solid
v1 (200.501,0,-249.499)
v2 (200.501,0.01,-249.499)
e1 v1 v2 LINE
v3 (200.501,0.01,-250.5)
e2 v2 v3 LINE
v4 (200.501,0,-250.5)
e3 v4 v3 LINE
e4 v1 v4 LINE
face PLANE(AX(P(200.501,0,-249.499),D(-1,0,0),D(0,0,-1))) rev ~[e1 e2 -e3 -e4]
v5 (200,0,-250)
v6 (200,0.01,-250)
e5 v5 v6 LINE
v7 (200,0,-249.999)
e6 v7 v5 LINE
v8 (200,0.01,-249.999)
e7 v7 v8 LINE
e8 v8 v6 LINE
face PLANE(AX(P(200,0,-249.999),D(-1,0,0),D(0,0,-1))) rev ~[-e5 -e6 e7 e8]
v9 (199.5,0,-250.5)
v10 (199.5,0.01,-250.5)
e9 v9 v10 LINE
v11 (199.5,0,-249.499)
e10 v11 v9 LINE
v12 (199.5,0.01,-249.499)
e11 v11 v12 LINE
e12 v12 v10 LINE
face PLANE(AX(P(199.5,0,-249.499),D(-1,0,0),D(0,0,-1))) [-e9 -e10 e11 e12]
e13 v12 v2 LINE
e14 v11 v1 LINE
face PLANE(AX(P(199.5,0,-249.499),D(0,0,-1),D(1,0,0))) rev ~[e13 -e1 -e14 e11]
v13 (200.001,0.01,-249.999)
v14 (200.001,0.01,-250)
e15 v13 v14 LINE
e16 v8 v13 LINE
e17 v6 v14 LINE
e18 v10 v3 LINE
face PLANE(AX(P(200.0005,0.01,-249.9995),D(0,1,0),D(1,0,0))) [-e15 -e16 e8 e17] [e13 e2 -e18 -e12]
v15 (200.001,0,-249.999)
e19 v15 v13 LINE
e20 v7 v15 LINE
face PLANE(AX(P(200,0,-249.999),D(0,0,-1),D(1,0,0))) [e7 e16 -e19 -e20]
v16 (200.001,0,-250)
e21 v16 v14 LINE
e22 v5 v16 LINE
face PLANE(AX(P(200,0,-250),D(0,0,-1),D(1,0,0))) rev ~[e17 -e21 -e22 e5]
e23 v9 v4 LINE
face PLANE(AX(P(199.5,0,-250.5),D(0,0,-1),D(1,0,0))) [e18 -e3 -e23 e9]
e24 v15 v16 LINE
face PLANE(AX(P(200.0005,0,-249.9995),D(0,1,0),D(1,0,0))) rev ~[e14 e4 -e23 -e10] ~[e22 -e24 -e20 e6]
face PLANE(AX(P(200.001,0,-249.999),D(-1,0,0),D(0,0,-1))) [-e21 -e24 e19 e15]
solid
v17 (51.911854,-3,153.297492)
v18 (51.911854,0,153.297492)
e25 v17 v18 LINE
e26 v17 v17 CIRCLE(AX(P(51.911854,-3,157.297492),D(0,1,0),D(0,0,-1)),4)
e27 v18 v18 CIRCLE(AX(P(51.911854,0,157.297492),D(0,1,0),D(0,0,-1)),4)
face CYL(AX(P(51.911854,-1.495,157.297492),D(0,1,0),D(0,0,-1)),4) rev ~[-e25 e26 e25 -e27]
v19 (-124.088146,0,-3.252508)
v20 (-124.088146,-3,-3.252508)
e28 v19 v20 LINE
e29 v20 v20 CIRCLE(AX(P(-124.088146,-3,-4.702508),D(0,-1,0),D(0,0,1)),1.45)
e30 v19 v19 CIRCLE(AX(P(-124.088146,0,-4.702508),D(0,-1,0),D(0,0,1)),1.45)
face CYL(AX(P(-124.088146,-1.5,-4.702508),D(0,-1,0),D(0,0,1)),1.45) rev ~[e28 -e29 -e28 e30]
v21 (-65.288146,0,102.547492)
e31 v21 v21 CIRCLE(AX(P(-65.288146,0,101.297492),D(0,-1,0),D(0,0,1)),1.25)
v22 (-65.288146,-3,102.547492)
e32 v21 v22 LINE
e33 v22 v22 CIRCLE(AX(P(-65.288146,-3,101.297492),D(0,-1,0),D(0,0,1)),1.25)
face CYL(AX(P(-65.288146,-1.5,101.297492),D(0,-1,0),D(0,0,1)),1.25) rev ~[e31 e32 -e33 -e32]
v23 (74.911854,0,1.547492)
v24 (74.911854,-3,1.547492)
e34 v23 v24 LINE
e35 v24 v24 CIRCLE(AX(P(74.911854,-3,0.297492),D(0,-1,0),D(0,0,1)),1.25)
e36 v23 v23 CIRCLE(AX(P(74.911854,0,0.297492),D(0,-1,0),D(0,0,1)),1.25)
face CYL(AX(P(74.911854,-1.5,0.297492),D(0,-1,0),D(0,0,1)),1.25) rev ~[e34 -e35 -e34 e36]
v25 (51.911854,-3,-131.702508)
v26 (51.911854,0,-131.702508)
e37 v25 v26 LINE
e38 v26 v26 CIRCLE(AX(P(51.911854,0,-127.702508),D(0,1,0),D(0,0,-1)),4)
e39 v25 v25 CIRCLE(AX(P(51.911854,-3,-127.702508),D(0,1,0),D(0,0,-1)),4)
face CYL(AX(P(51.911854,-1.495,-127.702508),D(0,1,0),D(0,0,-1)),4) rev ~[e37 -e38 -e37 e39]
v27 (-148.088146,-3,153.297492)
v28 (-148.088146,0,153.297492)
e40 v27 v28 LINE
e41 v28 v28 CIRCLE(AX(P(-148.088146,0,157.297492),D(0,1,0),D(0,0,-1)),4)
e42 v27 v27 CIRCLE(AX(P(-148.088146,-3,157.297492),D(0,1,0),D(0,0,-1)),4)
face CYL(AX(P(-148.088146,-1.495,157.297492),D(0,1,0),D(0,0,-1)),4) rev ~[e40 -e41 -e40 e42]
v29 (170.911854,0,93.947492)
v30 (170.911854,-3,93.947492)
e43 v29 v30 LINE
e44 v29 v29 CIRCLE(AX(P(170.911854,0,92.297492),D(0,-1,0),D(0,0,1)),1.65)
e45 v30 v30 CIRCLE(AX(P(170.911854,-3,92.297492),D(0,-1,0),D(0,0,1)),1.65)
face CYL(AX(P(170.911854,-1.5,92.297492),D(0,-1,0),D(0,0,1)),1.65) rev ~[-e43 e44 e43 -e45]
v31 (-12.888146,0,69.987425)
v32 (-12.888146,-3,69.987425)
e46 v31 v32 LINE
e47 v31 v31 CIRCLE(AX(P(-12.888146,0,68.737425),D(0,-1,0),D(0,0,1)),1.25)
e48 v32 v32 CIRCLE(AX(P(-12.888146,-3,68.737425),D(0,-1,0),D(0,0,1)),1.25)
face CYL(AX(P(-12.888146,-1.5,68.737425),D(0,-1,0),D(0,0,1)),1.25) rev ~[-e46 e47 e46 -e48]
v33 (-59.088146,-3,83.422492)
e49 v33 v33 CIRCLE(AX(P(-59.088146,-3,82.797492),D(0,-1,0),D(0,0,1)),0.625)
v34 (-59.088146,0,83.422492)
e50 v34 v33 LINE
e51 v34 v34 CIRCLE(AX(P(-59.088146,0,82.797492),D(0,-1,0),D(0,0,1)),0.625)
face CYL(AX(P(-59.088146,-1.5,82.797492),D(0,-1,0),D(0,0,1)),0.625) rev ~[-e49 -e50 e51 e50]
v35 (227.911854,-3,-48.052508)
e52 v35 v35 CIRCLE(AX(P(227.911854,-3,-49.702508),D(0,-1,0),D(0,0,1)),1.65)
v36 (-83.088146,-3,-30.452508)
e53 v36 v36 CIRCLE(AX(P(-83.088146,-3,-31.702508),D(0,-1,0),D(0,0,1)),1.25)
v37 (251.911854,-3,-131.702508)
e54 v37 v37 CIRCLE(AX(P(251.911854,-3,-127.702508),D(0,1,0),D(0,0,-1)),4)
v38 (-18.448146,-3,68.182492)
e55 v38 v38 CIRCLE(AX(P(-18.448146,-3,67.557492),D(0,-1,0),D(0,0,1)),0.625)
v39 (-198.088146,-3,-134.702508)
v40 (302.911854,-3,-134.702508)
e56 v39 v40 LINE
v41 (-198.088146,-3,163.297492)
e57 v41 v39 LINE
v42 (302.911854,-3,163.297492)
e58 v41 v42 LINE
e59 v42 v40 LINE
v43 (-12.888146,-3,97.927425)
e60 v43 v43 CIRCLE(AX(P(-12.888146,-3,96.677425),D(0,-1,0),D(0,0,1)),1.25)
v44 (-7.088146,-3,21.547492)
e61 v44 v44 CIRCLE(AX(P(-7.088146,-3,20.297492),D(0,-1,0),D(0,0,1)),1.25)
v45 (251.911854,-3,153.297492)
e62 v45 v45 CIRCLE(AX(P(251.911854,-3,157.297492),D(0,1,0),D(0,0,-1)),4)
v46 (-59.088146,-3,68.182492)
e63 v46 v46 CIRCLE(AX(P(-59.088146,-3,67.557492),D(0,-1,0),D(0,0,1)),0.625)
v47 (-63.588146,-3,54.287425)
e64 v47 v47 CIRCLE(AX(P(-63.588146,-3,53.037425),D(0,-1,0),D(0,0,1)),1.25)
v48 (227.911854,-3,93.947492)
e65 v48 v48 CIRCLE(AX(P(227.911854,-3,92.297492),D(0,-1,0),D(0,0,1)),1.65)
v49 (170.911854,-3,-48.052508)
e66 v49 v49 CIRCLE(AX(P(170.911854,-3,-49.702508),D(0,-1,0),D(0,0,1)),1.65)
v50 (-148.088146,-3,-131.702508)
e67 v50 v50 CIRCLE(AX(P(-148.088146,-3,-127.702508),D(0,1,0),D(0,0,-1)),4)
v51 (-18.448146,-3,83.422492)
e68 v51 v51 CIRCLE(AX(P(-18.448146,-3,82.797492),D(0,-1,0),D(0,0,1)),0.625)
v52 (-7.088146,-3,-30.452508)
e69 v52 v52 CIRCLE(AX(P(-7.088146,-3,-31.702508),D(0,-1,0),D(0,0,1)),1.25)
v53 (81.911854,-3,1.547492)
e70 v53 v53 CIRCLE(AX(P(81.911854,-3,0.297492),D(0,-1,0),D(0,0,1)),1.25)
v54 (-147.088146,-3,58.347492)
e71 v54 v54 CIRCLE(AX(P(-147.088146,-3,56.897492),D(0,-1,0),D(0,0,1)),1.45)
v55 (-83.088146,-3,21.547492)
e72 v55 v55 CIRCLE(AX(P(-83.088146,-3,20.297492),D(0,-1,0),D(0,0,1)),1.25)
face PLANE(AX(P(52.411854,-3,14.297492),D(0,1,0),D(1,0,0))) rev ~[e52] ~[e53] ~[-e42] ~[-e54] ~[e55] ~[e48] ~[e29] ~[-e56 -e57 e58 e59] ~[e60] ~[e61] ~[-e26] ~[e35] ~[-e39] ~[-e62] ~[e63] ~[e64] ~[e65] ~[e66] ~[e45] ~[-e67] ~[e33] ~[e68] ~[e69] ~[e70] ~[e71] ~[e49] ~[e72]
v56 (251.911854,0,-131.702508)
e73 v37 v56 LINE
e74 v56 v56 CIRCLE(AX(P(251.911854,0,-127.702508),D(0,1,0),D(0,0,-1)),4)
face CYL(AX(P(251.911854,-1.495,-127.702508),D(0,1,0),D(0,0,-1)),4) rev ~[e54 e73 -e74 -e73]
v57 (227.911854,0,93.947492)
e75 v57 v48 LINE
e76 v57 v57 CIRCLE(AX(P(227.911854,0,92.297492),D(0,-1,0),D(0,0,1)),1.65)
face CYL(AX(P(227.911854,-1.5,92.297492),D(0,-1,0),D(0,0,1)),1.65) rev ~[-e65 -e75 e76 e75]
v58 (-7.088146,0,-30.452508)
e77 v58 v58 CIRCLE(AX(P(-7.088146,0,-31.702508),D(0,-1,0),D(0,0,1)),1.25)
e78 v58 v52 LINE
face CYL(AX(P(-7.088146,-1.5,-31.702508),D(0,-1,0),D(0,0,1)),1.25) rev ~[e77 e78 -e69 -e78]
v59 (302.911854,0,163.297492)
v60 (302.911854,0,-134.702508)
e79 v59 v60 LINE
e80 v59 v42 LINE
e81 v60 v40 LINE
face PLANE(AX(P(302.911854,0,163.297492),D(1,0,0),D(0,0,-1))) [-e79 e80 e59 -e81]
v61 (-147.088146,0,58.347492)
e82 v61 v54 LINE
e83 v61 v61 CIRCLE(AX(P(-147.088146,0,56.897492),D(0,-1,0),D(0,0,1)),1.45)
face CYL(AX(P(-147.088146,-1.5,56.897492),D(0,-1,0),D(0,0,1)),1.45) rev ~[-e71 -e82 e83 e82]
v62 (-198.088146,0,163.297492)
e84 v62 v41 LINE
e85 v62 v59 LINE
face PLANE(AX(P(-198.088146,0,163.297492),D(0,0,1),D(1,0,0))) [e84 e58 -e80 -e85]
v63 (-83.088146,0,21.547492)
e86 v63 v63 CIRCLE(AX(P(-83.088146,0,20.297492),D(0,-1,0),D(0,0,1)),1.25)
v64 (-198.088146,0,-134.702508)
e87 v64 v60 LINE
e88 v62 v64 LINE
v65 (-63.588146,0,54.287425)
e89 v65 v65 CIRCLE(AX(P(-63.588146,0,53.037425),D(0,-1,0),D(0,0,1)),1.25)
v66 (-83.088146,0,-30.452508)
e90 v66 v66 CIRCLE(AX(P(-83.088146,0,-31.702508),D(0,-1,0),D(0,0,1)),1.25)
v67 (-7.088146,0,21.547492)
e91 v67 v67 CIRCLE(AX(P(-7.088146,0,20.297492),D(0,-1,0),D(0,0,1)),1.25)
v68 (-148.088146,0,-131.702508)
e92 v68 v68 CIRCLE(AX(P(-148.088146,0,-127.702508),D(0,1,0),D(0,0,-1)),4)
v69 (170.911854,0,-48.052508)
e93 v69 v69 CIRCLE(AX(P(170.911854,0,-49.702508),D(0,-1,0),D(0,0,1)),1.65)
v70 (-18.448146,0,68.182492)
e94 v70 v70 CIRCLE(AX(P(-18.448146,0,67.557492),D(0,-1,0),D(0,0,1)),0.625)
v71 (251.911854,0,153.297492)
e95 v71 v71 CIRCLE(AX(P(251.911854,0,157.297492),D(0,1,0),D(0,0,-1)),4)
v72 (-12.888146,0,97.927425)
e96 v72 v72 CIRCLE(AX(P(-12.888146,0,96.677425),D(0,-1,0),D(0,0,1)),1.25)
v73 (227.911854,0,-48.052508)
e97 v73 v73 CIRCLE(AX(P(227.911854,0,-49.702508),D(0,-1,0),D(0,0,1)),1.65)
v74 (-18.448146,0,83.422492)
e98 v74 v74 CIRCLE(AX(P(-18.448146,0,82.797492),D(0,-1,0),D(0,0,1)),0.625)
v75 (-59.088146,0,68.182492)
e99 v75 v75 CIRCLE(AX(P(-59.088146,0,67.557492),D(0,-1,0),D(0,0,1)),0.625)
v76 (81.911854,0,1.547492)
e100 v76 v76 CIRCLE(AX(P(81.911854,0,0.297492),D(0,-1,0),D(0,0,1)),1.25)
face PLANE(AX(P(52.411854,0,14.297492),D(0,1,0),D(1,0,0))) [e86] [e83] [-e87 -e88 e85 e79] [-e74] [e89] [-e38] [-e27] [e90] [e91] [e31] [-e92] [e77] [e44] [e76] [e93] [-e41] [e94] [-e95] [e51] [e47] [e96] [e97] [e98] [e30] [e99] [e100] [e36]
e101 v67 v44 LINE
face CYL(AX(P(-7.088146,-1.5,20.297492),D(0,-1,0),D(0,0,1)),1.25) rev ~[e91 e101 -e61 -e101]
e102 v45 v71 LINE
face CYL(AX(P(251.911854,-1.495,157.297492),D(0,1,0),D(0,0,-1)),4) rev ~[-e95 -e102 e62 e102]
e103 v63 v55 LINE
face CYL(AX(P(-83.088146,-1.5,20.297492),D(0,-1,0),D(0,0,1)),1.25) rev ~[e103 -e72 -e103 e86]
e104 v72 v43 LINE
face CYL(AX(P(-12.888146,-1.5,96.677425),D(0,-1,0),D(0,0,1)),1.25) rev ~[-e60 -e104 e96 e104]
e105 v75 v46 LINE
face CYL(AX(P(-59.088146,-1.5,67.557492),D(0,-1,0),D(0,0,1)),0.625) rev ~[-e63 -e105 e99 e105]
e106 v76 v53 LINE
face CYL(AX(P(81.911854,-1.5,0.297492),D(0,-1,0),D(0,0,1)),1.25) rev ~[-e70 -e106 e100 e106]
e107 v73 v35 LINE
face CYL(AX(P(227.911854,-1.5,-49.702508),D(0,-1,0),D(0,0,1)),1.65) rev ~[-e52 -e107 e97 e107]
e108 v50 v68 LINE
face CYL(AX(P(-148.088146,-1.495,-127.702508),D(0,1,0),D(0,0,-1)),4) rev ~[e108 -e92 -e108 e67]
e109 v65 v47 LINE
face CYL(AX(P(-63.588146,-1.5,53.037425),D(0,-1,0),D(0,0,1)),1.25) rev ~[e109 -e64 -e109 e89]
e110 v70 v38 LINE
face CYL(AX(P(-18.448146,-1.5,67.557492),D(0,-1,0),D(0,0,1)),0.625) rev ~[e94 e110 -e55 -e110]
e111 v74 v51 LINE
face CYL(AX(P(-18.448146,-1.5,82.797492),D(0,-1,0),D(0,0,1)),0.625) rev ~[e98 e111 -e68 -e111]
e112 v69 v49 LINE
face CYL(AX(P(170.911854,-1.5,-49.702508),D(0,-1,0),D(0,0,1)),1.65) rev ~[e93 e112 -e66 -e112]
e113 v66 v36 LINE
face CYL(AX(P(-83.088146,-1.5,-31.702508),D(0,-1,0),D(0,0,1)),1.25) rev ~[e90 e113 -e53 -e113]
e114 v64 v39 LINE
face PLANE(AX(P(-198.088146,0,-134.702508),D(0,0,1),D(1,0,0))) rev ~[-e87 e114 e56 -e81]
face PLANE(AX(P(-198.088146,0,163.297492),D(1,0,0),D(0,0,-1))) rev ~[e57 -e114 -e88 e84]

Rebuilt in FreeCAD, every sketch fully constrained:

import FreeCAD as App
import Part
import Sketcher
Q = App.Units.Quantity


def add_polygon(sketch, points):
    """Adds a closed chain of lines whose ends are joined by coincident constraints."""
    first, n = sketch.GeometryCount, len(points)
    for a, b in zip(points, points[1:] + points[:1]):
        sketch.addGeometry(Part.LineSegment(App.Vector(*a, 0), App.Vector(*b, 0)), False)
    for i in range(n):
        sketch.addConstraint(Sketcher.Constraint("Coincident", first + i, 2, first + (i + 1) % n, 1))

doc = App.newDocument("Part")
body = doc.addObject("PartDesign::Body", "Body")

# Sketch on XZ plane
sketch1 = body.newObject("Sketcher::SketchObject", "Sketch")
sketch1.AttachmentSupport = (doc.getObject("XZ_Plane"), [""])
sketch1.MapMode = "FlatFace"
add_polygon(sketch1, [(199.5, -250.5), (199.5, -249.499), (200.501, -249.499), (200.501, -250.5)])  # lines 0-3
add_polygon(sketch1, [(200.001, -249.999), (200, -249.999), (200, -250), (200.001, -250)])  # lines 4-7
sketch1.addConstraint([
    Sketcher.Constraint("Vertical", 0),
    Sketcher.Constraint("Horizontal", 1),
    Sketcher.Constraint("Vertical", 2),
    Sketcher.Constraint("Horizontal", 3),
    Sketcher.Constraint("Horizontal", 4),
    Sketcher.Constraint("Vertical", 5),
    Sketcher.Constraint("Horizontal", 6),
    Sketcher.Constraint("Vertical", 7),
    Sketcher.Constraint("Equal", 3, 0),
    Sketcher.Constraint("Equal", 6, 5),
    Sketcher.Constraint("DistanceX", -1, 1, 4, 2, Q("200 mm")),
    Sketcher.Constraint("DistanceY", 5, 2, -1, 1, Q("250 mm")),
    Sketcher.Constraint("DistanceX", -1, 1, 0, 2, Q("199.5 mm")),
    Sketcher.Constraint("DistanceY", 2, 2, -1, 1, Q("250.5 mm")),
    Sketcher.Constraint("DistanceY", 4, 2, 0, 2, Q("0.5 mm")),
    Sketcher.Constraint("DistanceX", 1, 1, 1, 2, Q("1.001 mm")),
])
pad1 = body.newObject("PartDesign::Pad", "Pad")
pad1.Profile = sketch1
pad1.Length = 0.01
pad1.Reversed = True
body2 = doc.addObject("PartDesign::Body", "Body001")

# Sketch on XZ plane
sketch2 = body2.newObject("Sketcher::SketchObject", "Sketch001")
sketch2.AttachmentSupport = (doc.getObject("XZ_Plane001"), [""])
sketch2.MapMode = "FlatFace"
add_polygon(sketch2, [(-198.088146, -134.702508), (-198.088146, 163.297492), (302.911854, 163.297492), (302.911854, -134.702508)])  # lines 0-3
sketch2.addConstraint([
    Sketcher.Constraint("Vertical", 0),
    Sketcher.Constraint("Horizontal", 1),
    Sketcher.Constraint("Vertical", 2),
    Sketcher.Constraint("Horizontal", 3),
    Sketcher.Constraint("DistanceX", 1, 1, 1, 2, Q("501 mm")),
    Sketcher.Constraint("DistanceY", 0, 1, 0, 2, Q("298 mm")),
    Sketcher.Constraint("DistanceX", 0, 2, -1, 1, Q("198.088146 mm")),
    Sketcher.Constraint("DistanceY", -1, 1, 0, 2, Q("163.297492 mm")),
])
pad2 = body2.newObject("PartDesign::Pad", "Pad001")
pad2.Profile = sketch2
pad2.Length = 3

# Sketch on YZ plane
sketch3 = body2.newObject("Sketcher::SketchObject", "Sketch002")
sketch3.AttachmentSupport = (doc.getObject("YZ_Plane001"), [""])
sketch3.MapMode = "FlatFace"
sketch3.AttachmentOffset = App.Placement(App.Vector(0, 0, -83.088146), App.Rotation())
add_polygon(sketch3, [(-3, -31.702508), (0, -31.702508), (0, -30.452508), (-3, -30.452508)])  # lines 0-3
sketch3.addGeometry(Part.LineSegment(App.Vector(0, -31.702508, 0), App.Vector(-3, -31.702508, 0)), True)  # axis
sketch3.addConstraint([
    Sketcher.Constraint("Horizontal", 0),
    Sketcher.Constraint("Vertical", 1),
    Sketcher.Constraint("Horizontal", 2),
    Sketcher.Constraint("Vertical", 3),
    Sketcher.Constraint("Horizontal", 4),
    Sketcher.Constraint("Coincident", 4, 1, 0, 2),
    Sketcher.Constraint("PointOnObject", 0, 2, -2),
    Sketcher.Constraint("Vertical", 2, 2, 4, 2),
    Sketcher.Constraint("DistanceX", 0, 1, 0, 2, Q("3 mm")),
    Sketcher.Constraint("DistanceY", 1, 1, 1, 2, Q("1.25 mm")),
    Sketcher.Constraint("DistanceY", 0, 2, -1, 1, Q("31.702508 mm")),
])
groove = body2.newObject("PartDesign::Groove", "Groove")
groove.Profile = sketch3
groove.ReferenceAxis = (sketch3, ["Axis0"])
groove.Angle = 360
doc.recompute()

linearpattern = body2.newObject("PartDesign::LinearPattern", "LinearPattern")
linearpattern.Originals = [groove]
linearpattern.Direction = (doc.getObject("X_Axis001"), [""])
linearpattern.Mode = "offset"
linearpattern.Offset = 76
linearpattern.Occurrences = 2
body2.Tip = linearpattern
doc.recompute()

datumline = body2.newObject("PartDesign::Line", "DatumLine")
datumline.Placement = App.Placement(App.Vector(0, 0, 0), App.Rotation(App.Vector(0, 0, 1), App.Vector(0.825307261, 0, 0.564683916)))
linearpattern2 = body2.newObject("PartDesign::LinearPattern", "LinearPattern001")
linearpattern2.Originals = [groove]
linearpattern2.Direction = (datumline, [""])
linearpattern2.Mode = "offset"
linearpattern2.Offset = 92.086915
linearpattern2.Occurrences = 2
body2.Tip = linearpattern2
doc.recompute()

linearpattern3 = body2.newObject("PartDesign::LinearPattern", "LinearPattern002")
linearpattern3.Originals = [groove]
linearpattern3.Direction = (doc.getObject("Z_Axis001"), [""])
linearpattern3.Mode = "offset"
linearpattern3.Offset = 52
linearpattern3.Occurrences = 2
body2.Tip = linearpattern3

# Sketch on YZ plane
sketch4 = body2.newObject("Sketcher::SketchObject", "Sketch003")
sketch4.AttachmentSupport = (doc.getObject("YZ_Plane001"), [""])
sketch4.MapMode = "FlatFace"
sketch4.AttachmentOffset = App.Placement(App.Vector(0, 0, -63.588146), App.Rotation())
add_polygon(sketch4, [(-3, 53.037425), (0, 53.037425), (0, 54.287425), (-3, 54.287425)])  # lines 0-3
sketch4.addGeometry(Part.LineSegment(App.Vector(0, 53.037425, 0), App.Vector(-3, 53.037425, 0)), True)  # axis
sketch4.addConstraint([
    Sketcher.Constraint("Horizontal", 0),
    Sketcher.Constraint("Vertical", 1),
    Sketcher.Constraint("Horizontal", 2),
    Sketcher.Constraint("Vertical", 3),
    Sketcher.Constraint("Horizontal", 4),
    Sketcher.Constraint("Coincident", 4, 1, 0, 2),
    Sketcher.Constraint("PointOnObject", 0, 2, -2),
    Sketcher.Constraint("Vertical", 2, 2, 4, 2),
    Sketcher.Constraint("DistanceX", 0, 1, 0, 2, Q("3 mm")),
    Sketcher.Constraint("DistanceY", 1, 1, 1, 2, Q("1.25 mm")),
    Sketcher.Constraint("DistanceY", -1, 1, 0, 2, Q("53.037425 mm")),
])
groove2 = body2.newObject("PartDesign::Groove", "Groove001")
groove2.Profile = sketch4
groove2.ReferenceAxis = (sketch4, ["Axis0"])
groove2.Angle = 360
doc.recompute()

datumline2 = body2.newObject("PartDesign::Line", "DatumLine001")
datumline2.Placement = App.Placement(App.Vector(0, 0, 0), App.Rotation(App.Vector(0, 0, 1), App.Vector(0.955247869, 0, 0.295806539)))
linearpattern4 = body2.newObject("PartDesign::LinearPattern", "LinearPattern003")
linearpattern4.Originals = [groove2]
linearpattern4.Direction = (datumline2, [""])
linearpattern4.Mode = "offset"
linearpattern4.Offset = 53.07523
linearpattern4.Occurrences = 2
body2.Tip = linearpattern4
doc.recompute()

datumline3 = body2.newObject("PartDesign::Line", "DatumLine002")
datumline3.Placement = App.Placement(App.Vector(0, 0, 0), App.Rotation(App.Vector(0, 0, 1), App.Vector(-0.035203976, 0, 0.999380148)))
linearpattern5 = body2.newObject("PartDesign::LinearPattern", "LinearPattern004")
linearpattern5.Originals = [groove2]
linearpattern5.Direction = (datumline3, [""])
linearpattern5.Mode = "offset"
linearpattern5.Offset = 48.29
linearpattern5.Occurrences = 2
body2.Tip = linearpattern5
doc.recompute()

datumline4 = body2.newObject("PartDesign::Line", "DatumLine003")
datumline4.Placement = App.Placement(App.Vector(0, 0, 0), App.Rotation(App.Vector(0, 0, 1), App.Vector(0.757904299, 0, 0.652365752)))
linearpattern6 = body2.newObject("PartDesign::LinearPattern", "LinearPattern005")
linearpattern6.Originals = [groove2]
linearpattern6.Direction = (datumline4, [""])
linearpattern6.Mode = "offset"
linearpattern6.Offset = 66.894989
linearpattern6.Occurrences = 2
body2.Tip = linearpattern6

# Sketch on YZ plane
sketch5 = body2.newObject("Sketcher::SketchObject", "Sketch004")
sketch5.AttachmentSupport = (doc.getObject("YZ_Plane001"), [""])
sketch5.MapMode = "FlatFace"
sketch5.AttachmentOffset = App.Placement(App.Vector(0, 0, 227.911854), App.Rotation())
add_polygon(sketch5, [(-3, -49.702508), (0, -49.702508), (0, -48.052508), (-3, -48.052508)])  # lines 0-3
sketch5.addGeometry(Part.LineSegment(App.Vector(0, -49.702508, 0), App.Vector(-3, -49.702508, 0)), True)  # axis
sketch5.addConstraint([
    Sketcher.Constraint("Horizontal", 0),
    Sketcher.Constraint("Vertical", 1),
    Sketcher.Constraint("Horizontal", 2),
    Sketcher.Constraint("Vertical", 3),
    Sketcher.Constraint("Horizontal", 4),
    Sketcher.Constraint("Coincident", 4, 1, 0, 2),
    Sketcher.Constraint("PointOnObject", 0, 2, -2),
    Sketcher.Constraint("Vertical", 2, 2, 4, 2),
    Sketcher.Constraint("DistanceX", 0, 1, 0, 2, Q("3 mm")),
    Sketcher.Constraint("DistanceY", 1, 1, 1, 2, Q("1.65 mm")),
    Sketcher.Constraint("DistanceY", 0, 2, -1, 1, Q("49.702508 mm")),
])
groove3 = body2.newObject("PartDesign::Groove", "Groove002")
groove3.Profile = sketch5
groove3.ReferenceAxis = (sketch5, ["Axis0"])
groove3.Angle = 360
doc.recompute()

linearpattern7 = body2.newObject("PartDesign::LinearPattern", "LinearPattern006")
linearpattern7.Originals = [groove3]
linearpattern7.Direction = (doc.getObject("X_Axis001"), [""])
linearpattern7.Mode = "offset"
linearpattern7.Offset = 57
linearpattern7.Occurrences = 2
linearpattern7.Reversed = True
body2.Tip = linearpattern7
doc.recompute()

datumline5 = body2.newObject("PartDesign::Line", "DatumLine004")
datumline5.Placement = App.Placement(App.Vector(0, 0, 0), App.Rotation(App.Vector(0, 0, 1), App.Vector(-0.372517194, 0, 0.928025291)))
linearpattern8 = body2.newObject("PartDesign::LinearPattern", "LinearPattern007")
linearpattern8.Originals = [groove3]
linearpattern8.Direction = (datumline5, [""])
linearpattern8.Mode = "offset"
linearpattern8.Offset = 153.013071
linearpattern8.Occurrences = 2
body2.Tip = linearpattern8
doc.recompute()

linearpattern9 = body2.newObject("PartDesign::LinearPattern", "LinearPattern008")
linearpattern9.Originals = [groove3]
linearpattern9.Direction = (doc.getObject("Z_Axis001"), [""])
linearpattern9.Mode = "offset"
linearpattern9.Offset = 142
linearpattern9.Occurrences = 2
body2.Tip = linearpattern9

# Sketch on YZ plane
sketch6 = body2.newObject("Sketcher::SketchObject", "Sketch005")
sketch6.AttachmentSupport = (doc.getObject("YZ_Plane001"), [""])
sketch6.MapMode = "FlatFace"
sketch6.AttachmentOffset = App.Placement(App.Vector(0, 0, -18.448146), App.Rotation())
add_polygon(sketch6, [(-3, 82.797492), (0, 82.797492), (0, 83.422492), (-3, 83.422492)])  # lines 0-3
sketch6.addGeometry(Part.LineSegment(App.Vector(0, 82.797492, 0), App.Vector(-3, 82.797492, 0)), True)  # axis
sketch6.addConstraint([
    Sketcher.Constraint("Horizontal", 0),
    Sketcher.Constraint("Vertical", 1),
    Sketcher.Constraint("Horizontal", 2),
    Sketcher.Constraint("Vertical", 3),
    Sketcher.Constraint("Horizontal", 4),
    Sketcher.Constraint("Coincident", 4, 1, 0, 2),
    Sketcher.Constraint("PointOnObject", 0, 2, -2),
    Sketcher.Constraint("Vertical", 2, 2, 4, 2),
    Sketcher.Constraint("DistanceX", 0, 1, 0, 2, Q("3 mm")),
    Sketcher.Constraint("DistanceY", 1, 1, 1, 2, Q("0.625 mm")),
    Sketcher.Constraint("DistanceY", -1, 1, 0, 2, Q("82.797492 mm")),
])
groove4 = body2.newObject("PartDesign::Groove", "Groove003")
groove4.Profile = sketch6
groove4.ReferenceAxis = (sketch6, ["Axis0"])
groove4.Angle = 360
doc.recompute()

linearpattern10 = body2.newObject("PartDesign::LinearPattern", "LinearPattern009")
linearpattern10.Originals = [groove4]
linearpattern10.Direction = (doc.getObject("X_Axis001"), [""])
linearpattern10.Mode = "offset"
linearpattern10.Offset = 40.64
linearpattern10.Occurrences = 2
linearpattern10.Reversed = True
body2.Tip = linearpattern10
doc.recompute()

datumline6 = body2.newObject("PartDesign::Line", "DatumLine005")
datumline6.Placement = App.Placement(App.Vector(0, 0, 0), App.Rotation(App.Vector(0, 0, 1), App.Vector(-0.936329178, 0, -0.351123442)))
linearpattern11 = body2.newObject("PartDesign::LinearPattern", "LinearPattern010")
linearpattern11.Originals = [groove4]
linearpattern11.Direction = (datumline6, [""])
linearpattern11.Mode = "offset"
linearpattern11.Offset = 43.403539
linearpattern11.Occurrences = 2
body2.Tip = linearpattern11
doc.recompute()

linearpattern12 = body2.newObject("PartDesign::LinearPattern", "LinearPattern011")
linearpattern12.Originals = [groove4]
linearpattern12.Direction = (doc.getObject("Z_Axis001"), [""])
linearpattern12.Mode = "offset"
linearpattern12.Offset = 15.24
linearpattern12.Occurrences = 2
linearpattern12.Reversed = True
body2.Tip = linearpattern12

# Sketch on YZ plane
sketch7 = body2.newObject("Sketcher::SketchObject", "Sketch006")
sketch7.AttachmentSupport = (doc.getObject("YZ_Plane001"), [""])
sketch7.MapMode = "FlatFace"
sketch7.AttachmentOffset = App.Placement(App.Vector(0, 0, 81.911854), App.Rotation())
add_polygon(sketch7, [(-3, 0.297492), (0, 0.297492), (0, 1.547492), (-3, 1.547492)])  # lines 0-3
sketch7.addGeometry(Part.LineSegment(App.Vector(0, 0.297492, 0), App.Vector(-3, 0.297492, 0)), True)  # axis
sketch7.addConstraint([
    Sketcher.Constraint("Horizontal", 0),
    Sketcher.Constraint("Vertical", 1),
    Sketcher.Constraint("Horizontal", 2),
    Sketcher.Constraint("Vertical", 3),
    Sketcher.Constraint("Horizontal", 4),
    Sketcher.Constraint("Coincident", 4, 1, 0, 2),
    Sketcher.Constraint("PointOnObject", 0, 2, -2),
    Sketcher.Constraint("Vertical", 2, 2, 4, 2),
    Sketcher.Constraint("DistanceX", 0, 1, 0, 2, Q("3 mm")),
    Sketcher.Constraint("DistanceY", 1, 1, 1, 2, Q("1.25 mm")),
    Sketcher.Constraint("DistanceY", -1, 1, 0, 2, Q("0.297492 mm")),
])
groove5 = body2.newObject("PartDesign::Groove", "Groove004")
groove5.Profile = sketch7
groove5.ReferenceAxis = (sketch7, ["Axis0"])
groove5.Angle = 360
doc.recompute()

linearpattern13 = body2.newObject("PartDesign::LinearPattern", "LinearPattern012")
linearpattern13.Originals = [groove5]
linearpattern13.Direction = (doc.getObject("X_Axis001"), [""])
linearpattern13.Mode = "offset"
linearpattern13.Offset = 7
linearpattern13.Occurrences = 2
linearpattern13.Reversed = True
body2.Tip = linearpattern13

# Sketch on YZ plane
sketch8 = body2.newObject("Sketcher::SketchObject", "Sketch007")
sketch8.AttachmentSupport = (doc.getObject("YZ_Plane001"), [""])
sketch8.MapMode = "FlatFace"
sketch8.AttachmentOffset = App.Placement(App.Vector(0, 0, -124.088146), App.Rotation())
add_polygon(sketch8, [(-3, -4.702508), (0, -4.702508), (0, -3.252508), (-3, -3.252508)])  # lines 0-3
sketch8.addGeometry(Part.LineSegment(App.Vector(0, -4.702508, 0), App.Vector(-3, -4.702508, 0)), True)  # axis
sketch8.addConstraint([
    Sketcher.Constraint("Horizontal", 0),
    Sketcher.Constraint("Vertical", 1),
    Sketcher.Constraint("Horizontal", 2),
    Sketcher.Constraint("Vertical", 3),
    Sketcher.Constraint("Horizontal", 4),
    Sketcher.Constraint("Coincident", 4, 1, 0, 2),
    Sketcher.Constraint("PointOnObject", 0, 2, -2),
    Sketcher.Constraint("Vertical", 2, 2, 4, 2),
    Sketcher.Constraint("DistanceX", 0, 1, 0, 2, Q("3 mm")),
    Sketcher.Constraint("DistanceY", 1, 1, 1, 2, Q("1.45 mm")),
    Sketcher.Constraint("DistanceY", 0, 2, -1, 1, Q("4.702508 mm")),
])
groove6 = body2.newObject("PartDesign::Groove", "Groove005")
groove6.Profile = sketch8
groove6.ReferenceAxis = (sketch8, ["Axis0"])
groove6.Angle = 360
doc.recompute()

datumline7 = body2.newObject("PartDesign::Line", "DatumLine006")
datumline7.Placement = App.Placement(App.Vector(0, 0, 0), App.Rotation(App.Vector(0, 0, 1), App.Vector(-0.34978976, 0, 0.936828226)))
linearpattern14 = body2.newObject("PartDesign::LinearPattern", "LinearPattern013")
linearpattern14.Originals = [groove6]
linearpattern14.Direction = (datumline7, [""])
linearpattern14.Mode = "offset"
linearpattern14.Offset = 65.753783
linearpattern14.Occurrences = 2
body2.Tip = linearpattern14

# Sketch on YZ plane
sketch9 = body2.newObject("Sketcher::SketchObject", "Sketch008")
sketch9.AttachmentSupport = (doc.getObject("YZ_Plane001"), [""])
sketch9.MapMode = "FlatFace"
sketch9.AttachmentOffset = App.Placement(App.Vector(0, 0, -148.088146), App.Rotation())
add_polygon(sketch9, [(0.01, 157.297492), (-3, 157.297492), (-3, 153.297492), (0.01, 153.297492)])  # lines 0-3
sketch9.addGeometry(Part.LineSegment(App.Vector(-3, 157.297492, 0), App.Vector(0.01, 157.297492, 0)), True)  # axis
sketch9.addConstraint([
    Sketcher.Constraint("Horizontal", 0),
    Sketcher.Constraint("Vertical", 1),
    Sketcher.Constraint("Horizontal", 2),
    Sketcher.Constraint("Vertical", 3),
    Sketcher.Constraint("Horizontal", 4),
    Sketcher.Constraint("Coincident", 4, 1, 0, 2),
    Sketcher.Constraint("Vertical", 2, 2, 4, 2),
    Sketcher.Constraint("DistanceY", 1, 2, 1, 1, Q("4 mm")),
    Sketcher.Constraint("DistanceX", 0, 2, -1, 1, Q("3 mm")),
    Sketcher.Constraint("DistanceX", 0, 2, 0, 1, Q("3.01 mm")),
    Sketcher.Constraint("DistanceY", -1, 1, 0, 2, Q("157.297492 mm")),
])
groove7 = body2.newObject("PartDesign::Groove", "Groove006")
groove7.Profile = sketch9
groove7.ReferenceAxis = (sketch9, ["Axis0"])
groove7.Angle = 360
doc.recompute()

linearpattern15 = body2.newObject("PartDesign::LinearPattern", "LinearPattern014")
linearpattern15.Originals = [groove7]
linearpattern15.Direction = (doc.getObject("X_Axis001"), [""])
linearpattern15.Mode = "offset"
linearpattern15.Offset = 200
linearpattern15.Occurrences = 2
body2.Tip = linearpattern15
doc.recompute()

linearpattern16 = body2.newObject("PartDesign::LinearPattern", "LinearPattern015")
linearpattern16.Originals = [groove7]
linearpattern16.Direction = (doc.getObject("X_Axis001"), [""])
linearpattern16.Mode = "offset"
linearpattern16.Offset = 400
linearpattern16.Occurrences = 2
body2.Tip = linearpattern16
doc.recompute()

datumline8 = body2.newObject("PartDesign::Line", "DatumLine007")
datumline8.Placement = App.Placement(App.Vector(0, 0, 0), App.Rotation(App.Vector(0, 0, 1), App.Vector(0.814420757, 0, -0.580274789)))
linearpattern17 = body2.newObject("PartDesign::LinearPattern", "LinearPattern016")
linearpattern17.Originals = [groove7]
linearpattern17.Direction = (datumline8, [""])
linearpattern17.Mode = "offset"
linearpattern17.Offset = 491.146618
linearpattern17.Occurrences = 2
body2.Tip = linearpattern17
doc.recompute()

datumline9 = body2.newObject("PartDesign::Line", "DatumLine008")
datumline9.Placement = App.Placement(App.Vector(0, 0, 0), App.Rotation(App.Vector(0, 0, 1), App.Vector(0.574425749, 0, -0.818556692)))
linearpattern18 = body2.newObject("PartDesign::LinearPattern", "LinearPattern017")
linearpattern18.Originals = [groove7]
linearpattern18.Direction = (datumline9, [""])
linearpattern18.Mode = "offset"
linearpattern18.Offset = 348.173807
linearpattern18.Occurrences = 2
body2.Tip = linearpattern18
doc.recompute()

linearpattern19 = body2.newObject("PartDesign::LinearPattern", "LinearPattern018")
linearpattern19.Originals = [groove7]
linearpattern19.Direction = (doc.getObject("Z_Axis001"), [""])
linearpattern19.Mode = "offset"
linearpattern19.Offset = 285
linearpattern19.Occurrences = 2
linearpattern19.Reversed = True
body2.Tip = linearpattern19

doc.recompute()
